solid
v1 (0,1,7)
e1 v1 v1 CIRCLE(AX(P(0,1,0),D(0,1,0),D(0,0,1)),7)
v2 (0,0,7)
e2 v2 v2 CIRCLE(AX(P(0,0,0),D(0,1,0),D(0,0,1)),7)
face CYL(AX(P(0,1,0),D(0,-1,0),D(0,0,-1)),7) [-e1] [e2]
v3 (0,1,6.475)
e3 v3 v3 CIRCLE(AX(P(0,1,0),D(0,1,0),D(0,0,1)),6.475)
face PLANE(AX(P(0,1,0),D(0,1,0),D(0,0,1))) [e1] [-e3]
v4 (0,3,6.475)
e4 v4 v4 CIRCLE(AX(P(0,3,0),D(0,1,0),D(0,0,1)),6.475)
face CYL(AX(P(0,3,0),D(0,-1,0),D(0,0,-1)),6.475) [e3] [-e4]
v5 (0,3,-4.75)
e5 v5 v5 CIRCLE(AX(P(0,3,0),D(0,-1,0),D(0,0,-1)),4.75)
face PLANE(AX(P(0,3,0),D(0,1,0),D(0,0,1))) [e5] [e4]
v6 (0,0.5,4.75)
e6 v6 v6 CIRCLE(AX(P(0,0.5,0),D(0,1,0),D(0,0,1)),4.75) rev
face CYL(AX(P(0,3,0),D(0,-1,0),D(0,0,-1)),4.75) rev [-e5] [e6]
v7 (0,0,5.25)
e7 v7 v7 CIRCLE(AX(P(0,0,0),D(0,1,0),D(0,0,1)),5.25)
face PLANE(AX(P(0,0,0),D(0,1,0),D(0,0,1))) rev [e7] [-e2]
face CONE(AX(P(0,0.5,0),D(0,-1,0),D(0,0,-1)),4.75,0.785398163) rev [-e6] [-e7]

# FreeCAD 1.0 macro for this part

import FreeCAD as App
import Part
import Sketcher

V = App.Vector
Q = App.Units.Quantity


def edges_at(feature, points):
    """Names of the edges that pass closest to the given points."""
    edges = feature.Shape.Edges
    near = lambda p: min(range(len(edges)), key=lambda i: edges[i].distToShape(Part.Vertex(*p))[0])
    return sorted({f"Edge{near(p) + 1}" for p in points})

doc = App.newDocument("Part")
body = doc.addObject("PartDesign::Body", "Body")

sketch1 = body.newObject("Sketcher::SketchObject", "Sketch")
sketch1.AttachmentSupport = (doc.getObject("XZ_Plane"), [""])
sketch1.MapMode = "FlatFace"
sketch1.addGeometry(Part.Circle(V(0, 0, 0), V(0, 0, 1), 7), False)
sketch1.addConstraint(Sketcher.Constraint("Coincident", 0, 3, -1, 1))
sketch1.addConstraint(Sketcher.Constraint("Diameter", 0, Q("14 mm")))
pad1 = body.newObject("PartDesign::Pad", "Pad")
pad1.Profile = sketch1
pad1.Length = 1
pad1.Reversed = True

sketch2 = body.newObject("Sketcher::SketchObject", "Sketch001")
sketch2.AttachmentSupport = (doc.getObject("XZ_Plane"), [""])
sketch2.MapMode = "FlatFace"
sketch2.AttachmentOffset = App.Placement(V(0, 0, -1), App.Rotation())
sketch2.addGeometry(Part.Circle(V(0, 0, 0), V(0, 0, 1), 6), False)
sketch2.addConstraint(Sketcher.Constraint("Coincident", 0, 3, -1, 1))
sketch2.addConstraint(Sketcher.Constraint("Diameter", 0, Q("12.95 mm")))
pad2 = body.newObject("PartDesign::Pad", "Pad001")
pad2.Profile = sketch2
pad2.Length = 2
pad2.Reversed = True

sketch3 = body.newObject("Sketcher::SketchObject", "Sketch002")
sketch3.AttachmentSupport = (doc.getObject("XZ_Plane"), [""])
sketch3.MapMode = "FlatFace"
sketch3.addGeometry(Part.Circle(V(0, 0, 0), V(0, 0, 1), 4.8), False)
sketch3.addConstraint(Sketcher.Constraint("Coincident", 0, 3, -1, 1))
sketch3.addConstraint(Sketcher.Constraint("Diameter", 0, Q("9.5 mm")))
pocket1 = body.newObject("PartDesign::Pocket", "Pocket")
pocket1.Profile = sketch3
pocket1.Type = "ThroughAll"
doc.recompute()

chamfer = body.newObject("PartDesign::Chamfer", "Chamfer")
chamfer.Base = (pocket1, edges_at(pocket1, [(0, 0, 4.75)]))
chamfer.Size = 0.5

doc.recompute()
